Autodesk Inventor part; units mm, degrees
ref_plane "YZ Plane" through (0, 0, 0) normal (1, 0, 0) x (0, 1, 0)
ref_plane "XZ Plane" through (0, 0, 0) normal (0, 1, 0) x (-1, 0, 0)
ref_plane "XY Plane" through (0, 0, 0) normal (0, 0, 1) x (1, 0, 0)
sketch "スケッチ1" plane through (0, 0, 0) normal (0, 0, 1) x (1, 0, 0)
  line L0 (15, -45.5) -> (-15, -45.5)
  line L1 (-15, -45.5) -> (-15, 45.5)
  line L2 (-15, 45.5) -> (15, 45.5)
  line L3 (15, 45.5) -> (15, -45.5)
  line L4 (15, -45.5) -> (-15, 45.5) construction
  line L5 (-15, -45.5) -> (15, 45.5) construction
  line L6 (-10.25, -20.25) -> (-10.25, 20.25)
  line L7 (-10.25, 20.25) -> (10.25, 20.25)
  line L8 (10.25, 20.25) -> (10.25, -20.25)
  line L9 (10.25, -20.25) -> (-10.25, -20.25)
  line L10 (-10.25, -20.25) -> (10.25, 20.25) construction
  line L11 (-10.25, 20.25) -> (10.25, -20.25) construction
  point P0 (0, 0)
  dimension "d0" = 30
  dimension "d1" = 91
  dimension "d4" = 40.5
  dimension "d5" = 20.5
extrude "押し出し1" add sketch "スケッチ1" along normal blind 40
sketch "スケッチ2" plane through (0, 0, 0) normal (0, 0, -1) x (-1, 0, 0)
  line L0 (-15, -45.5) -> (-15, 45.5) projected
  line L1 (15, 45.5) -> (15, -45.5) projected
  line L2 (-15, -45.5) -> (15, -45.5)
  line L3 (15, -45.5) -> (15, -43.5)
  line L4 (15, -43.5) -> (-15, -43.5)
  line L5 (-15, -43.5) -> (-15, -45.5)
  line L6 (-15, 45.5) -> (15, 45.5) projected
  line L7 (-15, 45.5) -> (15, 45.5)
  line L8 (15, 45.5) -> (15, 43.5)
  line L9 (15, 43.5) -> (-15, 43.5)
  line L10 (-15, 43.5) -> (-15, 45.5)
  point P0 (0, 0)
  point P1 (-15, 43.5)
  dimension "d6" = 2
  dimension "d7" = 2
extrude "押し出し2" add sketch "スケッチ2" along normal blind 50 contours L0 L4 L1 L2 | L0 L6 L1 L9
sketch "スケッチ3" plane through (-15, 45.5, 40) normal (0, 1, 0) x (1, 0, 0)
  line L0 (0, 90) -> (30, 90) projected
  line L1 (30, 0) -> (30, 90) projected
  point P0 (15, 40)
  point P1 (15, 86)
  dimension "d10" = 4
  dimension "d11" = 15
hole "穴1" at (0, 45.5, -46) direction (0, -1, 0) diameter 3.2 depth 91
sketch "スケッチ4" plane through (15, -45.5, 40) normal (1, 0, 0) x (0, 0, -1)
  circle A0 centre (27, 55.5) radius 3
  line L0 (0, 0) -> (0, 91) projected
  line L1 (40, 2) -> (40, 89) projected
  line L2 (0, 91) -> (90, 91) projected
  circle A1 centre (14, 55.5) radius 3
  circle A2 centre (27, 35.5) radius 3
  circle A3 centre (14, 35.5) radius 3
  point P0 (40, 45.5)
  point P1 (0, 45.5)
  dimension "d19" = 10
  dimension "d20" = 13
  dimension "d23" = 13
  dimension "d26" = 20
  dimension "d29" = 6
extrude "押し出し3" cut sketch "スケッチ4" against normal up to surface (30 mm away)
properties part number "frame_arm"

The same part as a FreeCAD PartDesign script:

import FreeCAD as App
import Part
import Sketcher


def add_polygon(sketch, points):
    """Adds a closed chain of lines whose ends are joined by coincident constraints."""
    first, n = sketch.GeometryCount, len(points)
    for a, b in zip(points, points[1:] + points[:1]):
        sketch.addGeometry(Part.LineSegment(App.Vector(*a, 0), App.Vector(*b, 0)), False)
    for i in range(n):
        sketch.addConstraint(Sketcher.Constraint("Coincident", first + i, 2, first + (i + 1) % n, 1))

doc = App.newDocument("Part")
body = doc.addObject("PartDesign::Body", "Body")

# Sketch on XY plane
sketch1 = body.newObject("Sketcher::SketchObject", "Sketch")
sketch1.AttachmentSupport = (doc.getObject("XY_Plane"), [""])
sketch1.MapMode = "FlatFace"
add_polygon(sketch1, [(-15, -46), (15, -46), (15, 46), (-15, 46)])  # lines 0-3
add_polygon(sketch1, [(10, -20), (-10, -20), (-10, 20), (10, 20)])  # lines 4-7
sketch1.addConstraint(Sketcher.Constraint("Horizontal", 0))
sketch1.addConstraint(Sketcher.Constraint("Vertical", 1))
sketch1.addConstraint(Sketcher.Constraint("Horizontal", 2))
sketch1.addConstraint(Sketcher.Constraint("Vertical", 3))
sketch1.addConstraint(Sketcher.Constraint("Horizontal", 4))
sketch1.addConstraint(Sketcher.Constraint("Vertical", 5))
sketch1.addConstraint(Sketcher.Constraint("Horizontal", 6))
sketch1.addConstraint(Sketcher.Constraint("Vertical", 7))
sketch1.addConstraint(Sketcher.Constraint("Symmetric", 0, 2, 2, 2, -1, 1))
sketch1.addConstraint(Sketcher.Constraint("Symmetric", 4, 2, 6, 2, -1, 1))
sketch1.addConstraint(Sketcher.Constraint("DistanceX", 0, 1, 0, 2, 30.0))
sketch1.addConstraint(Sketcher.Constraint("DistanceY", 1, 1, 1, 2, 91.0))
sketch1.addConstraint(Sketcher.Constraint("DistanceX", 4, 2, 4, 1, 20.5))
sketch1.addConstraint(Sketcher.Constraint("DistanceY", 5, 1, 5, 2, 40.5))
pad1 = body.newObject("PartDesign::Pad", "Pad")
pad1.Profile = sketch1
pad1.Length = 40

# Sketch on XY plane
sketch2 = body.newObject("Sketcher::SketchObject", "Sketch001")
sketch2.AttachmentSupport = (doc.getObject("XY_Plane"), [""])
sketch2.MapMode = "FlatFace"
add_polygon(sketch2, [(15, -43.5), (15, -45.5), (-15, -45.5), (-15, -43.5)])  # lines 0-3
add_polygon(sketch2, [(15, 45.5), (15, 43.5), (-15, 43.5), (-15, 45.5)])  # lines 4-7
sketch2.addConstraint(Sketcher.Constraint("Vertical", 0))
sketch2.addConstraint(Sketcher.Constraint("Horizontal", 1))
sketch2.addConstraint(Sketcher.Constraint("Vertical", 2))
sketch2.addConstraint(Sketcher.Constraint("Horizontal", 3))
sketch2.addConstraint(Sketcher.Constraint("Vertical", 4))
sketch2.addConstraint(Sketcher.Constraint("Horizontal", 5))
sketch2.addConstraint(Sketcher.Constraint("Vertical", 6))
sketch2.addConstraint(Sketcher.Constraint("Horizontal", 7))
sketch2.addConstraint(Sketcher.Constraint("Symmetric", 2, 2, 4, 2, -1, 1))
sketch2.addConstraint(Sketcher.Constraint("Symmetric", 0, 2, 6, 2, -1, 1))
sketch2.addConstraint(Sketcher.Constraint("Vertical", 3, 2, 4, 2))
sketch2.addConstraint(Sketcher.Constraint("DistanceY", 0, 2, 0, 1, 2.0))
sketch2.addConstraint(Sketcher.Constraint("DistanceX", 1, 2, 1, 1, 30.0))
sketch2.addConstraint(Sketcher.Constraint("DistanceY", 3, 2, 4, 2, 87.0))
pad2 = body.newObject("PartDesign::Pad", "Pad001")
pad2.Profile = sketch2
pad2.Length = 50
pad2.Reversed = True

# Sketch on XZ plane
sketch3 = body.newObject("Sketcher::SketchObject", "Sketch002")
sketch3.AttachmentSupport = (doc.getObject("XZ_Plane"), [""])
sketch3.MapMode = "FlatFace"
sketch3.AttachmentOffset = App.Placement(App.Vector(0, 0, -45.5), App.Rotation())
sketch3.addGeometry(Part.Circle(App.Vector(0, -46, 0), App.Vector(0, 0, 1), 1.6), False)
sketch3.addConstraint(Sketcher.Constraint("PointOnObject", 0, 3, -2))
sketch3.addConstraint(Sketcher.Constraint("Diameter", 0, 3.2))
sketch3.addConstraint(Sketcher.Constraint("DistanceY", 0, 3, -1, 1, 46.0))
doc.recompute()
hole = body.newObject("PartDesign::Hole", "Hole")
hole.Profile = sketch3
hole.ThreadType = "None"
hole.Diameter = 3.2
hole.DepthType = "Dimension"
hole.Depth = 91
hole.DrillPoint = "Flat"
hole.Reversed = True

# Sketch on YZ plane
sketch4 = body.newObject("Sketcher::SketchObject", "Sketch003")
sketch4.AttachmentSupport = (doc.getObject("YZ_Plane"), [""])
sketch4.MapMode = "FlatFace"
sketch4.AttachmentOffset = App.Placement(App.Vector(0, 0, 15), App.Rotation())
sketch4.addGeometry(Part.Circle(App.Vector(10, 13, 0), App.Vector(0, 0, 1), 3), False)
sketch4.addGeometry(Part.Circle(App.Vector(10, 26, 0), App.Vector(0, 0, 1), 3), False)
sketch4.addGeometry(Part.Circle(App.Vector(-10, 13, 0), App.Vector(0, 0, 1), 3), False)
sketch4.addGeometry(Part.Circle(App.Vector(-10, 26, 0), App.Vector(0, 0, 1), 3), False)
sketch4.addConstraint(Sketcher.Constraint("Equal", 0, 1))
sketch4.addConstraint(Sketcher.Constraint("Equal", 1, 2))
sketch4.addConstraint(Sketcher.Constraint("Equal", 2, 3))
sketch4.addConstraint(Sketcher.Constraint("Symmetric", 0, 3, 2, 3, -2))
sketch4.addConstraint(Sketcher.Constraint("Symmetric", 1, 3, 3, 3, -2))
sketch4.addConstraint(Sketcher.Constraint("Vertical", 0, 3, 1, 3))
sketch4.addConstraint(Sketcher.Constraint("Diameter", 0, 6.0))
sketch4.addConstraint(Sketcher.Constraint("DistanceX", -1, 1, 0, 3, 10.0))
sketch4.addConstraint(Sketcher.Constraint("DistanceY", -1, 1, 0, 3, 13.0))
sketch4.addConstraint(Sketcher.Constraint("DistanceY", 0, 3, 1, 3, 13.0))
pocket1 = body.newObject("PartDesign::Pocket", "Pocket")
pocket1.Profile = sketch4
pocket1.Length = 30

doc.recompute()
